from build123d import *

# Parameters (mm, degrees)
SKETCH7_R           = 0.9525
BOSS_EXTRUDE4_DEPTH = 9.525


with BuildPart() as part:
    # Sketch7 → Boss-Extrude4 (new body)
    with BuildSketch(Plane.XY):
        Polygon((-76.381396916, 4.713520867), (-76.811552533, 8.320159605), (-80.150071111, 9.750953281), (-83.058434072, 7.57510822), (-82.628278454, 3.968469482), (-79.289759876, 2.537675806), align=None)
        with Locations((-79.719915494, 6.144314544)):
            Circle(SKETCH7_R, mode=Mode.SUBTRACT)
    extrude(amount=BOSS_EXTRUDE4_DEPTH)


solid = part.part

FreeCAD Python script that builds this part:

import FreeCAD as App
import Part
import Sketcher
Q = App.Units.Quantity

doc = App.newDocument("Part")
body = doc.addObject("PartDesign::Body", "Body")

# Sketch on XY plane
sketch1 = doc.addObject("Sketcher::SketchObject", "Sketch")
body.addObject(sketch1)
sketch1.AttachmentSupport = (doc.XY_Plane, [""])
sketch1.MapMode = "FlatFace"
sketch1.addGeometry(Part.LineSegment(App.Vector(-76.4, 4.7, 0), App.Vector(-76.8, 8.3, 0)), False)
sketch1.addGeometry(Part.LineSegment(App.Vector(-76.8, 8.3, 0), App.Vector(-80.2, 9.8, 0)), False)
sketch1.addGeometry(Part.LineSegment(App.Vector(-80.2, 9.8, 0), App.Vector(-83.1, 7.6, 0)), False)
sketch1.addGeometry(Part.LineSegment(App.Vector(-83.1, 7.6, 0), App.Vector(-82.6, 4, 0)), False)
sketch1.addGeometry(Part.LineSegment(App.Vector(-82.6, 4, 0), App.Vector(-79.3, 2.5, 0)), False)
sketch1.addGeometry(Part.LineSegment(App.Vector(-79.3, 2.5, 0), App.Vector(-76.4, 4.7, 0)), False)
sketch1.addGeometry(Part.Circle(App.Vector(-79.7, 6.1, 0), App.Vector(0, 0, 1), 1), False)
sketch1.addConstraint(Sketcher.Constraint("Coincident", 0, 2, 1, 1))
sketch1.addConstraint(Sketcher.Constraint("Coincident", 1, 2, 2, 1))
sketch1.addConstraint(Sketcher.Constraint("Coincident", 2, 2, 3, 1))
sketch1.addConstraint(Sketcher.Constraint("Coincident", 3, 2, 4, 1))
sketch1.addConstraint(Sketcher.Constraint("Coincident", 4, 2, 5, 1))
sketch1.addConstraint(Sketcher.Constraint("Coincident", 5, 2, 0, 1))
sketch1.addConstraint(Sketcher.Constraint("Parallel", 0, 3))
sketch1.addConstraint(Sketcher.Constraint("Parallel", 1, 4))
sketch1.addConstraint(Sketcher.Constraint("Parallel", 2, 5))
sketch1.addConstraint(Sketcher.Constraint("Equal", 0, 1))
sketch1.addConstraint(Sketcher.Constraint("Equal", 1, 2))
sketch1.addConstraint(Sketcher.Constraint("Equal", 2, 3))
sketch1.addConstraint(Sketcher.Constraint("Diameter", 6, Q("0.075 in")))
sketch1.addConstraint(Sketcher.Constraint("Distance", 0, Q("0.143 in")))
sketch1.addConstraint(Sketcher.Constraint("DistanceY", -1, 1, 0, 2, 8.32016))
sketch1.addConstraint(Sketcher.Constraint("DistanceX", 1, 2, -1, 1, 80.150071))
sketch1.addConstraint(Sketcher.Constraint("DistanceY", -1, 1, 2, 2, 7.575108))
sketch1.addConstraint(Sketcher.Constraint("DistanceX", 3, 2, -1, 1, 82.628278))
sketch1.addConstraint(Sketcher.Constraint("DistanceY", -1, 1, 3, 2, 3.968469))
sketch1.addConstraint(Sketcher.Constraint("DistanceY", 6, 3, 1, 2, 3.606639))
sketch1.addConstraint(Sketcher.Constraint("DistanceX", 2, 2, 6, 3, 3.338519))
pad1 = doc.addObject("PartDesign::Pad", "Pad")
body.addObject(pad1)
pad1.Profile = sketch1
pad1.Length = Q("0.375 in")

doc.recompute()
